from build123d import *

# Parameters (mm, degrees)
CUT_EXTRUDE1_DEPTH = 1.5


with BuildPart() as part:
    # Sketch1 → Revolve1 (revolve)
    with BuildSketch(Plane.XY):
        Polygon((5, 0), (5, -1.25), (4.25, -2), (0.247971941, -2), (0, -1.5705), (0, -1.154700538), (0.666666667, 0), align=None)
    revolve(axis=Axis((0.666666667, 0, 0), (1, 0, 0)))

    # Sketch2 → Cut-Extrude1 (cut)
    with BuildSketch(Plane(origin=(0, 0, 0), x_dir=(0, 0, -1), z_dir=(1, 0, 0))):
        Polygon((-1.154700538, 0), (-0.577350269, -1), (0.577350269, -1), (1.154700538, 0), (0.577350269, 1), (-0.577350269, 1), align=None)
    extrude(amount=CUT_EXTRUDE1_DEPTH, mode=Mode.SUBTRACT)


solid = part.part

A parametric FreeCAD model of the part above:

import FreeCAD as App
import Part
import Sketcher
Q = App.Units.Quantity


def add_polygon(sketch, points):
    """Adds a closed chain of lines whose ends are joined by coincident constraints."""
    first, n = sketch.GeometryCount, len(points)
    for a, b in zip(points, points[1:] + points[:1]):
        sketch.addGeometry(Part.LineSegment(App.Vector(*a, 0), App.Vector(*b, 0)), False)
    for i in range(n):
        sketch.addConstraint(Sketcher.Constraint("Coincident", first + i, 2, first + (i + 1) % n, 1))

doc = App.newDocument("Part")
body = doc.addObject("PartDesign::Body", "Body")

# Sketch on XY plane
sketch1 = doc.addObject("Sketcher::SketchObject", "Sketch")
body.addObject(sketch1)
sketch1.AttachmentSupport = (doc.XY_Plane, [""])
sketch1.MapMode = "FlatFace"
add_polygon(sketch1, [(5, -1.25), (5, 0), (0.67, 0), (0, -1.15), (0, -1.57), (0.25, -2), (4.25, -2)])  # lines 0-6
sketch1.addConstraint(Sketcher.Constraint("Vertical", 0))
sketch1.addConstraint(Sketcher.Constraint("Horizontal", 1))
sketch1.addConstraint(Sketcher.Constraint("Vertical", 3))
sketch1.addConstraint(Sketcher.Constraint("Horizontal", 5))
sketch1.addConstraint(Sketcher.Constraint("PointOnObject", 0, 2, -1))
sketch1.addConstraint(Sketcher.Constraint("PointOnObject", 2, 2, -2))
sketch1.addConstraint(Sketcher.Constraint("Angle", 2, Q("-120 deg")))
sketch1.addConstraint(Sketcher.Constraint("Angle", 4, Q("-60 deg")))
sketch1.addConstraint(Sketcher.Constraint("Angle", 6, Q("45 deg")))
sketch1.addConstraint(Sketcher.Constraint("DistanceX", -1, 1, 0, 2, Q("5 mm")))
sketch1.addConstraint(Sketcher.Constraint("DistanceY", 4, 2, -1, 1, Q("2 mm")))
sketch1.addConstraint(Sketcher.Constraint("DistanceY", 0, 1, 0, 2, Q("1.25 mm")))
sketch1.addConstraint(Sketcher.Constraint("DistanceY", 3, 2, 3, 1, Q("0.415799 mm")))
sketch1.addConstraint(Sketcher.Constraint("DistanceX", 5, 1, 5, 2, Q("4.002028 mm")))
revolution = doc.addObject("PartDesign::Revolution", "Revolution")
body.addObject(revolution)
revolution.Profile = sketch1
revolution.ReferenceAxis = (sketch1, ["H_Axis"])
revolution.Angle = 360

# Sketch on YZ plane
sketch2 = doc.addObject("Sketcher::SketchObject", "Sketch001")
body.addObject(sketch2)
sketch2.AttachmentSupport = (doc.YZ_Plane, [""])
sketch2.MapMode = "FlatFace"
add_polygon(sketch2, [(0, 1.2), (-1, 0.6), (-1, -0.6), (0, -1.2), (1, -0.6), (1, 0.6)])  # lines 0-5
sketch2.addConstraint(Sketcher.Constraint("Vertical", 1))
sketch2.addConstraint(Sketcher.Constraint("Vertical", 4))
sketch2.addConstraint(Sketcher.Constraint("Symmetric", 0, 2, 3, 2, -1, 1))
sketch2.addConstraint(Sketcher.Constraint("Symmetric", 2, 2, 5, 2, -1, 1))
sketch2.addConstraint(Sketcher.Constraint("PointOnObject", 2, 2, -2))
sketch2.addConstraint(Sketcher.Constraint("Parallel", 2, 5))
sketch2.addConstraint(Sketcher.Constraint("Horizontal", 1, 2, 3, 2))
sketch2.addConstraint(Sketcher.Constraint("Angle", 0, Q("-150 deg")))
sketch2.addConstraint(Sketcher.Constraint("DistanceX", 0, 2, -1, 1, Q("1 mm")))
sketch2.addConstraint(Sketcher.Constraint("DistanceY", 1, 2, 1, 1, Q("1.154701 mm")))
pocket1 = doc.addObject("PartDesign::Pocket", "Pocket")
body.addObject(pocket1)
pocket1.Profile = sketch2
pocket1.Length = 1.5
pocket1.Reversed = True

doc.recompute()
